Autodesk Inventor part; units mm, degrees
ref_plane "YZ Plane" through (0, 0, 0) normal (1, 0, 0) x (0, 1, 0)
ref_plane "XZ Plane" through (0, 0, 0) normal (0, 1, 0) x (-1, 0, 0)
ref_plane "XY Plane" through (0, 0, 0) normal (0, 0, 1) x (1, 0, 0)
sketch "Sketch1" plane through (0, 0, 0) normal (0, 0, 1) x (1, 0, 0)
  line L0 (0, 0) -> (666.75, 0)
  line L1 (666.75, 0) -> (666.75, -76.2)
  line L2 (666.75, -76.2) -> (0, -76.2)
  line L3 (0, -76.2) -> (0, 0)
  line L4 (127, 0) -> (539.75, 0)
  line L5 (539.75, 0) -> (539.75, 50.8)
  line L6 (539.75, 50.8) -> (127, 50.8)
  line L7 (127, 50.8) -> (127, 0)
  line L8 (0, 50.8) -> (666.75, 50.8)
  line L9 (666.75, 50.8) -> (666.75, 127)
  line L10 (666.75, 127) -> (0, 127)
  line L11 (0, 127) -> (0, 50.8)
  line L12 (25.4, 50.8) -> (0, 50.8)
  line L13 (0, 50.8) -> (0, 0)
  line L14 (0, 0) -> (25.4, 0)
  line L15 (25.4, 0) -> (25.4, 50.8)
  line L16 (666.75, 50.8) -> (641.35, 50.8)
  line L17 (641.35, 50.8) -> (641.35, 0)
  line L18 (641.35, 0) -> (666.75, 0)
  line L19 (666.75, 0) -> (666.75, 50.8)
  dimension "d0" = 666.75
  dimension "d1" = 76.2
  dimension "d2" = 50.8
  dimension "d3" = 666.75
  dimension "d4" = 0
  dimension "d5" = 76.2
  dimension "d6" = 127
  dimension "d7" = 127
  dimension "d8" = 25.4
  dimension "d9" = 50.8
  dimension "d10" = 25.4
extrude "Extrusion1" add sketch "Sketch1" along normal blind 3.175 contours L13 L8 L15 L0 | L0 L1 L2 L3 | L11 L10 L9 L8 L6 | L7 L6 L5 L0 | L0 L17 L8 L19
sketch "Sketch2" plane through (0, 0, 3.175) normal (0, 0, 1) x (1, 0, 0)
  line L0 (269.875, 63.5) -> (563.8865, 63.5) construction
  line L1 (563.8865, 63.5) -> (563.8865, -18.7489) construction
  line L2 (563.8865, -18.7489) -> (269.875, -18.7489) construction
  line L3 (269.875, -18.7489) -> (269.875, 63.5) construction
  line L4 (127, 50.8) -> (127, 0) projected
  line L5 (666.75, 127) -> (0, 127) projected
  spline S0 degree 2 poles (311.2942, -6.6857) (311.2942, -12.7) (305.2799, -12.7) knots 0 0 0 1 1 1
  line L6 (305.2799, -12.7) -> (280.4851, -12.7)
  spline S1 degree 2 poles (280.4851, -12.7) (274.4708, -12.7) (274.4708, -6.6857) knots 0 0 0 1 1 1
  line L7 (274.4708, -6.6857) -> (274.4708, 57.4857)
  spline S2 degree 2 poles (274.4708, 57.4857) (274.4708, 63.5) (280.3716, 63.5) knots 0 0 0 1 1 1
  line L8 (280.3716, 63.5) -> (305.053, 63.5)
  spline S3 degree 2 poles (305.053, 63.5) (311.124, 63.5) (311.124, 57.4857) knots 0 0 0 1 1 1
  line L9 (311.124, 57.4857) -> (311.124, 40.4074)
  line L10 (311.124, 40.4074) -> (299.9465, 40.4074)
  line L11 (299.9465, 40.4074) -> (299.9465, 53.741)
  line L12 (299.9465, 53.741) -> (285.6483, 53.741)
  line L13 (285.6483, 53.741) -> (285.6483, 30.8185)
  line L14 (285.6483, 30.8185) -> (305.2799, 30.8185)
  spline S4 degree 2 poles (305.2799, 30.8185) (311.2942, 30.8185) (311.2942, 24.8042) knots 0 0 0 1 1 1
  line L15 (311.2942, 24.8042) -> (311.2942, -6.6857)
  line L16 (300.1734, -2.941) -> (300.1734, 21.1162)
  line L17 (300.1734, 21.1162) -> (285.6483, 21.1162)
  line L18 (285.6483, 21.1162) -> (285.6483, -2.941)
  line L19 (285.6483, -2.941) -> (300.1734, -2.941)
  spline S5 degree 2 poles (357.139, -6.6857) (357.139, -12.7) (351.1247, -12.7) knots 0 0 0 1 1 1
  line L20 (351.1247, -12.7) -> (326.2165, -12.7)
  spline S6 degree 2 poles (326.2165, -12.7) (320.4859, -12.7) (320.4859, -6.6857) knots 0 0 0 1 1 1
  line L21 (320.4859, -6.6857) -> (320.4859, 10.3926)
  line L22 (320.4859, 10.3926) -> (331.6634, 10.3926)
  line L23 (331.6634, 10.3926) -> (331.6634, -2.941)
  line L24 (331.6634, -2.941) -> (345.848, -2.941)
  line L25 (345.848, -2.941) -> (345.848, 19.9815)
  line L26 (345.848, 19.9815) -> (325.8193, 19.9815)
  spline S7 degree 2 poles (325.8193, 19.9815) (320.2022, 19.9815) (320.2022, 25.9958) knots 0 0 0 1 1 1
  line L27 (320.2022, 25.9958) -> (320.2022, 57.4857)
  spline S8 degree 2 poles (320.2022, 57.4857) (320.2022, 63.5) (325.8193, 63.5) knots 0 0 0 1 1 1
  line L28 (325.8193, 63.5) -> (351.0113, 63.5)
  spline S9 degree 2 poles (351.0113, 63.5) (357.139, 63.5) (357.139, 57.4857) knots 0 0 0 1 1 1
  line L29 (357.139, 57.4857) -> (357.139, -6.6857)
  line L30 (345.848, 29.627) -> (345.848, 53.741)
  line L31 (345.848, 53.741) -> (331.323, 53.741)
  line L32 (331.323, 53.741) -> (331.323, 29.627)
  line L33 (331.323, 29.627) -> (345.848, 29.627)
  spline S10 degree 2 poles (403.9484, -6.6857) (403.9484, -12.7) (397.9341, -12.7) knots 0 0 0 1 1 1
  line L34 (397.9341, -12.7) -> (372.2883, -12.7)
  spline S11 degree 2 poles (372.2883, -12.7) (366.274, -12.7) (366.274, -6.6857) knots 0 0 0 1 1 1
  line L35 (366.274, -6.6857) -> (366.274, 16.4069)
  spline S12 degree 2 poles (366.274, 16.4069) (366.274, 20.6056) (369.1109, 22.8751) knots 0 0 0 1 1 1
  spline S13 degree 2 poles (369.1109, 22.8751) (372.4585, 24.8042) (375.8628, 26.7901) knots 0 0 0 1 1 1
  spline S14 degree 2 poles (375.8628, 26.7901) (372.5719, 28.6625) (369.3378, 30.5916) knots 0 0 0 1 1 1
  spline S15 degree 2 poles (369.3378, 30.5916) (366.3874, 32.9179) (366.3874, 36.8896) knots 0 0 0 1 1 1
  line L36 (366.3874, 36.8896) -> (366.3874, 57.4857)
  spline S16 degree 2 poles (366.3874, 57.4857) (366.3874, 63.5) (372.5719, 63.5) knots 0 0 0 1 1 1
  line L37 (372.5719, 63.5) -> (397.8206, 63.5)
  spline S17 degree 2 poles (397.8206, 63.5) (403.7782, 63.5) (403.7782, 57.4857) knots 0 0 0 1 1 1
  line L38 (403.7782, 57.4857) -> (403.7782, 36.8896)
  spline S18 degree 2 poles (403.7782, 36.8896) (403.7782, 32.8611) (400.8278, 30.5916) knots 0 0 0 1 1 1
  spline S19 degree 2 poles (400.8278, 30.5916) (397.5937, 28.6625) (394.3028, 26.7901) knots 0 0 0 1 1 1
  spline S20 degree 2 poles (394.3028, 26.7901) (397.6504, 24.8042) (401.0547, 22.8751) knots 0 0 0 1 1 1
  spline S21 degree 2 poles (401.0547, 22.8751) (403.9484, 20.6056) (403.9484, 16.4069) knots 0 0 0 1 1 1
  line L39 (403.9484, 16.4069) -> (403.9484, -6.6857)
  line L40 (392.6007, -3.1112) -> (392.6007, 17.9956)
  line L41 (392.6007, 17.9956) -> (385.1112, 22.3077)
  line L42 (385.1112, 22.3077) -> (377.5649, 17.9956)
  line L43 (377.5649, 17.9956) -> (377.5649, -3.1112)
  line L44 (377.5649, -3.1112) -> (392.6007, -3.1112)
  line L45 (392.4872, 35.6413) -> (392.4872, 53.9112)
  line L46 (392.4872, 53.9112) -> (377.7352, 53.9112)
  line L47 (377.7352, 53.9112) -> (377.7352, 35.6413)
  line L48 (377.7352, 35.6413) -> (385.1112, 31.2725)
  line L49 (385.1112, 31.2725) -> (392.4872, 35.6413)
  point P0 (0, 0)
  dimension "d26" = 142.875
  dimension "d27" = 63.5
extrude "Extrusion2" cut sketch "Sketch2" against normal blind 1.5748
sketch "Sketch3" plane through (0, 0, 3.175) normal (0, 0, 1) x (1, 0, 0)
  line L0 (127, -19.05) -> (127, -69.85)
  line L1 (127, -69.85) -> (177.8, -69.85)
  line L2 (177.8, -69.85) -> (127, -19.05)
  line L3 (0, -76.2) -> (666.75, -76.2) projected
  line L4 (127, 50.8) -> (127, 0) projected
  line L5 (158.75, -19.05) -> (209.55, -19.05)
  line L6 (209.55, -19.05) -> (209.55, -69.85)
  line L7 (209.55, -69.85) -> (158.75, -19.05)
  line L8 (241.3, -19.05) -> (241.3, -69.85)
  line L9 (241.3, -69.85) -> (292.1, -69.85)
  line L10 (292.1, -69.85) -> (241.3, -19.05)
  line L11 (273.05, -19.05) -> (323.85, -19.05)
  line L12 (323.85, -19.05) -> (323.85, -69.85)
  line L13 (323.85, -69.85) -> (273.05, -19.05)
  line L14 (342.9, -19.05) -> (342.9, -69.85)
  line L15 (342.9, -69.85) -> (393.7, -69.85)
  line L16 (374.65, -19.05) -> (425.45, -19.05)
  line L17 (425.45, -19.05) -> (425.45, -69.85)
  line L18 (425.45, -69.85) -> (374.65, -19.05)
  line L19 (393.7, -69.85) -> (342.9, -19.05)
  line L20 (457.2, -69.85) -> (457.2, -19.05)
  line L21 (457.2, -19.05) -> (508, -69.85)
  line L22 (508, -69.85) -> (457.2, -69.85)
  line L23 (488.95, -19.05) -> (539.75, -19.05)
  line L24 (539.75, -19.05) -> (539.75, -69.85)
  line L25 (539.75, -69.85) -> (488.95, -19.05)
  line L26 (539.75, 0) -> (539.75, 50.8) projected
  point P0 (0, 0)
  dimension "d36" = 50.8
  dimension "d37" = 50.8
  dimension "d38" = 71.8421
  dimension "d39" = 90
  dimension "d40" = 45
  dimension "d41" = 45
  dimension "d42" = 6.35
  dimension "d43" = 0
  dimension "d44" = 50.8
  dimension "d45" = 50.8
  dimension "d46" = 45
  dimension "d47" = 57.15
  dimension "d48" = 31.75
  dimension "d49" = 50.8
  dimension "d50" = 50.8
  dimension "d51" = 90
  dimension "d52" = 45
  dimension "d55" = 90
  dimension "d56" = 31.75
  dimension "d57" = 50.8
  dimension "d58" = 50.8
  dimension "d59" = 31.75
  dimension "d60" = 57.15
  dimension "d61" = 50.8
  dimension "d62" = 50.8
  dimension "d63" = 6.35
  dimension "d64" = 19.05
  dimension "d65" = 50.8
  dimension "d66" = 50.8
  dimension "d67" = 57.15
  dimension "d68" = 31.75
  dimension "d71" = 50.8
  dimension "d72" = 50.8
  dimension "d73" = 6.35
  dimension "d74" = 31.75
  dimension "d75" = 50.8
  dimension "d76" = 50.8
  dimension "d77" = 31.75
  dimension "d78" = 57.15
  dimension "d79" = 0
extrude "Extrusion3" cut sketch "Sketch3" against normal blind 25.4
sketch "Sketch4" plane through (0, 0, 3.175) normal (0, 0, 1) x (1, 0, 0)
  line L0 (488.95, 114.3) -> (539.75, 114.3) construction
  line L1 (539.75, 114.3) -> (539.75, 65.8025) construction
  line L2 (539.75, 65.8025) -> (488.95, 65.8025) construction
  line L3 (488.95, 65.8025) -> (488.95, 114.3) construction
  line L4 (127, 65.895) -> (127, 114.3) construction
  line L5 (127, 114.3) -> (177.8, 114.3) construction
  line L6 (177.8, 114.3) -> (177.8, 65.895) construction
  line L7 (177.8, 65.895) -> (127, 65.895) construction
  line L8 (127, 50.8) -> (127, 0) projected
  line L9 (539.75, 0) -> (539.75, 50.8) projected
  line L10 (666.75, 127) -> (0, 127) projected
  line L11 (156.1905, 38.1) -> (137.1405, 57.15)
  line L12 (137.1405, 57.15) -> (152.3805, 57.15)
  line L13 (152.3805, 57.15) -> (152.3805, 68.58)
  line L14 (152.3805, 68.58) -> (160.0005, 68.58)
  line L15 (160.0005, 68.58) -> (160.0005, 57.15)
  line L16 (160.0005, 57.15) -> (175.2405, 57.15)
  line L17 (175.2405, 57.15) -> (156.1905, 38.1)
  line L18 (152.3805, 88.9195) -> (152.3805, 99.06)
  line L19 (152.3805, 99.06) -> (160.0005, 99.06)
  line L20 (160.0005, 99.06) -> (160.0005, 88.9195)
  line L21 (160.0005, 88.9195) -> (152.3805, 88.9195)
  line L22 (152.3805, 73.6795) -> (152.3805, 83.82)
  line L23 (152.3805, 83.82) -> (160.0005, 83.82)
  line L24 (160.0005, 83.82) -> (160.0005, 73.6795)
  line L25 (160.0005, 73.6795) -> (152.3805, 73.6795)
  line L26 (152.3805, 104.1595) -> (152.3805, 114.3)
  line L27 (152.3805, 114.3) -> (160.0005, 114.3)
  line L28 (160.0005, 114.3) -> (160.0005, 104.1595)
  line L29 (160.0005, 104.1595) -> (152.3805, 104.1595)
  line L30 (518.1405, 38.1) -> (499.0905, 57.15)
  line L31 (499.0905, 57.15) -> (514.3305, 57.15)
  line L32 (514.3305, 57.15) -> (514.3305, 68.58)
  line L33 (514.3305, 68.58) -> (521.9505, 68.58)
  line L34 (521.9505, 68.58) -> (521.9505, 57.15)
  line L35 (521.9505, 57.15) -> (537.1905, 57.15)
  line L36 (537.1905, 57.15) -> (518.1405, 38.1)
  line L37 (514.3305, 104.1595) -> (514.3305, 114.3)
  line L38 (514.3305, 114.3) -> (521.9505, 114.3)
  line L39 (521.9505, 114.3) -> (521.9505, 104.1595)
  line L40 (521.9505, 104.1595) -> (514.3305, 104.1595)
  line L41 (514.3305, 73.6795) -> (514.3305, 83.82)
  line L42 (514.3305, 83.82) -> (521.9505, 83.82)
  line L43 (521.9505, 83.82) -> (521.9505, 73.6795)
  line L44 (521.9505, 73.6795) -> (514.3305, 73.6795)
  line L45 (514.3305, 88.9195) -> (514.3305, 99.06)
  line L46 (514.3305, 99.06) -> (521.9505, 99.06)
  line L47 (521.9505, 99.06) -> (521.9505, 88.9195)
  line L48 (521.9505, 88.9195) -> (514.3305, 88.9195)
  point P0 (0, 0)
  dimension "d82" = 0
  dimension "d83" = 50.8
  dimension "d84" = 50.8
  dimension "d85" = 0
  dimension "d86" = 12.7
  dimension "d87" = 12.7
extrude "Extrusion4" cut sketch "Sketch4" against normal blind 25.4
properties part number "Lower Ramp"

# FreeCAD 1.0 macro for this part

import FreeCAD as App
import Part
import Sketcher

V = App.Vector
Q = App.Units.Quantity

doc = App.newDocument("Part")
body = doc.addObject("PartDesign::Body", "Body")

# Sketch on XY plane
sketch1 = body.newObject("Sketcher::SketchObject", "Sketch")
sketch1.AttachmentSupport = (doc.getObject("XY_Plane"), [""])
sketch1.MapMode = "FlatFace"
sketch1.addGeometry(Part.LineSegment(V(0, -76, 0), V(667, -76, 0)), False)
sketch1.addGeometry(Part.LineSegment(V(667, -76, 0), V(667, 127, 0)), False)
sketch1.addGeometry(Part.LineSegment(V(667, 127, 0), V(0, 127, 0)), False)
sketch1.addGeometry(Part.LineSegment(V(0, 127, 0), V(0, -76, 0)), False)
sketch1.addGeometry(Part.LineSegment(V(25, 0, 0), V(25, 51, 0)), False)
sketch1.addGeometry(Part.LineSegment(V(25, 51, 0), V(127, 51, 0)), False)
sketch1.addGeometry(Part.LineSegment(V(127, 51, 0), V(127, 0, 0)), False)
sketch1.addGeometry(Part.LineSegment(V(127, 0, 0), V(25, 0, 0)), False)
sketch1.addGeometry(Part.LineSegment(V(540, 51, 0), V(641, 51, 0)), False)
sketch1.addGeometry(Part.LineSegment(V(641, 51, 0), V(641, 0, 0)), False)
sketch1.addGeometry(Part.LineSegment(V(641, 0, 0), V(540, 0, 0)), False)
sketch1.addGeometry(Part.LineSegment(V(540, 0, 0), V(540, 51, 0)), False)
sketch1.addConstraint(Sketcher.Constraint("Coincident", 0, 2, 1, 1))
sketch1.addConstraint(Sketcher.Constraint("Coincident", 1, 2, 2, 1))
sketch1.addConstraint(Sketcher.Constraint("Coincident", 2, 2, 3, 1))
sketch1.addConstraint(Sketcher.Constraint("Coincident", 3, 2, 0, 1))
sketch1.addConstraint(Sketcher.Constraint("Coincident", 4, 2, 5, 1))
sketch1.addConstraint(Sketcher.Constraint("Coincident", 5, 2, 6, 1))
sketch1.addConstraint(Sketcher.Constraint("Coincident", 6, 2, 7, 1))
sketch1.addConstraint(Sketcher.Constraint("Coincident", 7, 2, 4, 1))
sketch1.addConstraint(Sketcher.Constraint("Coincident", 8, 2, 9, 1))
sketch1.addConstraint(Sketcher.Constraint("Coincident", 9, 2, 10, 1))
sketch1.addConstraint(Sketcher.Constraint("Coincident", 10, 2, 11, 1))
sketch1.addConstraint(Sketcher.Constraint("Coincident", 11, 2, 8, 1))
sketch1.addConstraint(Sketcher.Constraint("Horizontal", 0))
sketch1.addConstraint(Sketcher.Constraint("Vertical", 1))
sketch1.addConstraint(Sketcher.Constraint("Horizontal", 2))
sketch1.addConstraint(Sketcher.Constraint("Vertical", 3))
sketch1.addConstraint(Sketcher.Constraint("Vertical", 4))
sketch1.addConstraint(Sketcher.Constraint("Horizontal", 5))
sketch1.addConstraint(Sketcher.Constraint("Vertical", 6))
sketch1.addConstraint(Sketcher.Constraint("Horizontal", 7))
sketch1.addConstraint(Sketcher.Constraint("Horizontal", 8))
sketch1.addConstraint(Sketcher.Constraint("Vertical", 9))
sketch1.addConstraint(Sketcher.Constraint("Horizontal", 10))
sketch1.addConstraint(Sketcher.Constraint("Vertical", 11))
sketch1.addConstraint(Sketcher.Constraint("PointOnObject", 2, 2, -2))
sketch1.addConstraint(Sketcher.Constraint("PointOnObject", 6, 2, -1))
sketch1.addConstraint(Sketcher.Constraint("PointOnObject", 9, 2, -1))
sketch1.addConstraint(Sketcher.Constraint("Horizontal", 5, 2, 8, 2))
sketch1.addConstraint(Sketcher.Constraint("Equal", 7, 8))
sketch1.addConstraint(Sketcher.Constraint("DistanceY", 4, 1, 4, 2, Q("2 in")))
sketch1.addConstraint(Sketcher.Constraint("DistanceY", 0, 2, -1, 1, Q("3 in")))
sketch1.addConstraint(Sketcher.Constraint("DistanceY", -1, 1, 1, 2, Q("5 in")))
sketch1.addConstraint(Sketcher.Constraint("DistanceX", -1, 1, 4, 2, Q("1 in")))
sketch1.addConstraint(Sketcher.Constraint("DistanceX", -1, 1, 5, 2, Q("5 in")))
sketch1.addConstraint(Sketcher.Constraint("DistanceX", 8, 2, 1, 2, Q("1 in")))
sketch1.addConstraint(Sketcher.Constraint("DistanceX", 0, 1, 0, 2, Q("26.25 in")))
pad1 = body.newObject("PartDesign::Pad", "Pad")
pad1.Profile = sketch1
pad1.Length = Q("0.125 in")

# Sketch on XY plane
sketch2 = body.newObject("Sketcher::SketchObject", "Sketch001")
sketch2.AttachmentSupport = (doc.getObject("XY_Plane"), [""])
sketch2.MapMode = "FlatFace"
sketch2.AttachmentOffset = App.Placement(V(0, 0, 0.125 * 25.4), App.Rotation())
sketch2.addGeometry(Part.BSplineCurve([V(311.2942, -6.6857, 0), V(311.2942, -12.7, 0), V(305.2799, -12.7, 0)], [3, 3], [0, 1], False, 2, [1, 1, 1], False), False)
sketch2.addGeometry(Part.LineSegment(V(311.2942, -6.6857, 0), V(311.2942, 24.8042, 0)), False)
sketch2.addGeometry(Part.BSplineCurve([V(305.2799, 30.8185, 0), V(311.2942, 30.8185, 0), V(311.2942, 24.8042, 0)], [3, 3], [0, 1], False, 2, [1, 1, 1], False), False)
sketch2.addGeometry(Part.LineSegment(V(305.2799, 30.8185, 0), V(285.6483, 30.8185, 0)), False)
sketch2.addGeometry(Part.LineSegment(V(285.6483, 30.8185, 0), V(285.6483, 53.741, 0)), False)
sketch2.addGeometry(Part.LineSegment(V(285.6483, 53.741, 0), V(299.9465, 53.741, 0)), False)
sketch2.addGeometry(Part.LineSegment(V(299.9465, 53.741, 0), V(299.9465, 40.4074, 0)), False)
sketch2.addGeometry(Part.LineSegment(V(299.9465, 40.4074, 0), V(311.124, 40.4074, 0)), False)
sketch2.addGeometry(Part.LineSegment(V(311.124, 40.4074, 0), V(311.124, 57.4857, 0)), False)
sketch2.addGeometry(Part.BSplineCurve([V(305.053, 63.5, 0), V(311.124, 63.5, 0), V(311.124, 57.4857, 0)], [3, 3], [0, 1], False, 2, [1, 1, 1], False), False)
sketch2.addGeometry(Part.LineSegment(V(305.053, 63.5, 0), V(280.3716, 63.5, 0)), False)
sketch2.addGeometry(Part.BSplineCurve([V(274.4708, 57.4857, 0), V(274.4708, 63.5, 0), V(280.3716, 63.5, 0)], [3, 3], [0, 1], False, 2, [1, 1, 1], False), False)
sketch2.addGeometry(Part.LineSegment(V(274.4708, 57.4857, 0), V(274.4708, -6.6857, 0)), False)
sketch2.addGeometry(Part.BSplineCurve([V(280.4851, -12.7, 0), V(274.4708, -12.7, 0), V(274.4708, -6.6857, 0)], [3, 3], [0, 1], False, 2, [1, 1, 1], False), False)
sketch2.addGeometry(Part.LineSegment(V(280.4851, -12.7, 0), V(305.2799, -12.7, 0)), False)
sketch2.addGeometry(Part.LineSegment(V(300.1734, 21.1162, 0), V(300.1734, -2.941, 0)), False)
sketch2.addGeometry(Part.LineSegment(V(300.1734, -2.941, 0), V(285.6483, -2.941, 0)), False)
sketch2.addGeometry(Part.LineSegment(V(285.6483, -2.941, 0), V(285.6483, 21.1162, 0)), False)
sketch2.addGeometry(Part.LineSegment(V(285.6483, 21.1162, 0), V(300.1734, 21.1162, 0)), False)
sketch2.addGeometry(Part.BSplineCurve([V(357.139, -6.6857, 0), V(357.139, -12.7, 0), V(351.1247, -12.7, 0)], [3, 3], [0, 1], False, 2, [1, 1, 1], False), False)
sketch2.addGeometry(Part.LineSegment(V(357.139, -6.6857, 0), V(357.139, 57.4857, 0)), False)
sketch2.addGeometry(Part.BSplineCurve([V(351.0113, 63.5, 0), V(357.139, 63.5, 0), V(357.139, 57.4857, 0)], [3, 3], [0, 1], False, 2, [1, 1, 1], False), False)
sketch2.addGeometry(Part.LineSegment(V(351.0113, 63.5, 0), V(325.8193, 63.5, 0)), False)
sketch2.addGeometry(Part.BSplineCurve([V(320.2022, 57.4857, 0), V(320.2022, 63.5, 0), V(325.8193, 63.5, 0)], [3, 3], [0, 1], False, 2, [1, 1, 1], False), False)
sketch2.addGeometry(Part.LineSegment(V(320.2022, 57.4857, 0), V(320.2022, 25.9958, 0)), False)
sketch2.addGeometry(Part.BSplineCurve([V(325.8193, 19.9815, 0), V(320.2022, 19.9815, 0), V(320.2022, 25.9958, 0)], [3, 3], [0, 1], False, 2, [1, 1, 1], False), False)
sketch2.addGeometry(Part.LineSegment(V(325.8193, 19.9815, 0), V(345.848, 19.9815, 0)), False)
sketch2.addGeometry(Part.LineSegment(V(345.848, 19.9815, 0), V(345.848, -2.941, 0)), False)
sketch2.addGeometry(Part.LineSegment(V(345.848, -2.941, 0), V(331.6634, -2.941, 0)), False)
sketch2.addGeometry(Part.LineSegment(V(331.6634, -2.941, 0), V(331.6634, 10.3926, 0)), False)
sketch2.addGeometry(Part.LineSegment(V(331.6634, 10.3926, 0), V(320.4859, 10.3926, 0)), False)
sketch2.addGeometry(Part.LineSegment(V(320.4859, 10.3926, 0), V(320.4859, -6.6857, 0)), False)
sketch2.addGeometry(Part.BSplineCurve([V(326.2165, -12.7, 0), V(320.4859, -12.7, 0), V(320.4859, -6.6857, 0)], [3, 3], [0, 1], False, 2, [1, 1, 1], False), False)
sketch2.addGeometry(Part.LineSegment(V(326.2165, -12.7, 0), V(351.1247, -12.7, 0)), False)
sketch2.addGeometry(Part.LineSegment(V(345.848, 53.741, 0), V(345.848, 29.627, 0)), False)
sketch2.addGeometry(Part.LineSegment(V(345.848, 29.627, 0), V(331.323, 29.627, 0)), False)
sketch2.addGeometry(Part.LineSegment(V(331.323, 29.627, 0), V(331.323, 53.741, 0)), False)
sketch2.addGeometry(Part.LineSegment(V(331.323, 53.741, 0), V(345.848, 53.741, 0)), False)
sketch2.addGeometry(Part.BSplineCurve([V(403.9484, -6.6857, 0), V(403.9484, -12.7, 0), V(397.9341, -12.7, 0)], [3, 3], [0, 1], False, 2, [1, 1, 1], False), False)
sketch2.addGeometry(Part.LineSegment(V(403.9484, -6.6857, 0), V(403.9484, 16.4069, 0)), False)
sketch2.addGeometry(Part.BSplineCurve([V(401.0547, 22.8751, 0), V(403.9484, 20.6056, 0), V(403.9484, 16.4069, 0)], [3, 3], [0, 1], False, 2, [1, 1, 1], False), False)
sketch2.addGeometry(Part.BSplineCurve([V(394.3028, 26.7901, 0), V(397.6504, 24.8042, 0), V(401.0547, 22.8751, 0)], [3, 3], [0, 1], False, 2, [1, 1, 1], False), False)
sketch2.addGeometry(Part.BSplineCurve([V(400.8278, 30.5916, 0), V(397.5937, 28.6625, 0), V(394.3028, 26.7901, 0)], [3, 3], [0, 1], False, 2, [1, 1, 1], False), False)
sketch2.addGeometry(Part.BSplineCurve([V(403.7782, 36.8896, 0), V(403.7782, 32.8611, 0), V(400.8278, 30.5916, 0)], [3, 3], [0, 1], False, 2, [1, 1, 1], False), False)
sketch2.addGeometry(Part.LineSegment(V(403.7782, 36.8896, 0), V(403.7782, 57.4857, 0)), False)
sketch2.addGeometry(Part.BSplineCurve([V(397.8206, 63.5, 0), V(403.7782, 63.5, 0), V(403.7782, 57.4857, 0)], [3, 3], [0, 1], False, 2, [1, 1, 1], False), False)
sketch2.addGeometry(Part.LineSegment(V(397.8206, 63.5, 0), V(372.5719, 63.5, 0)), False)
sketch2.addGeometry(Part.BSplineCurve([V(366.3874, 57.4857, 0), V(366.3874, 63.5, 0), V(372.5719, 63.5, 0)], [3, 3], [0, 1], False, 2, [1, 1, 1], False), False)
sketch2.addGeometry(Part.LineSegment(V(366.3874, 57.4857, 0), V(366.3874, 36.8896, 0)), False)
sketch2.addGeometry(Part.BSplineCurve([V(369.3378, 30.5916, 0), V(366.3874, 32.9179, 0), V(366.3874, 36.8896, 0)], [3, 3], [0, 1], False, 2, [1, 1, 1], False), False)
sketch2.addGeometry(Part.BSplineCurve([V(375.8628, 26.7901, 0), V(372.5719, 28.6625, 0), V(369.3378, 30.5916, 0)], [3, 3], [0, 1], False, 2, [1, 1, 1], False), False)
sketch2.addGeometry(Part.BSplineCurve([V(369.1109, 22.8751, 0), V(372.4585, 24.8042, 0), V(375.8628, 26.7901, 0)], [3, 3], [0, 1], False, 2, [1, 1, 1], False), False)
sketch2.addGeometry(Part.BSplineCurve([V(366.274, 16.4069, 0), V(366.274, 20.6056, 0), V(369.1109, 22.8751, 0)], [3, 3], [0, 1], False, 2, [1, 1, 1], False), False)
sketch2.addGeometry(Part.LineSegment(V(366.274, 16.4069, 0), V(366.274, -6.6857, 0)), False)
sketch2.addGeometry(Part.BSplineCurve([V(372.2883, -12.7, 0), V(366.274, -12.7, 0), V(366.274, -6.6857, 0)], [3, 3], [0, 1], False, 2, [1, 1, 1], False), False)
sketch2.addGeometry(Part.LineSegment(V(372.2883, -12.7, 0), V(397.9341, -12.7, 0)), False)
sketch2.addGeometry(Part.LineSegment(V(392.6007, 17.9956, 0), V(392.6007, -3.1112, 0)), False)
sketch2.addGeometry(Part.LineSegment(V(392.6007, -3.1112, 0), V(377.5649, -3.1112, 0)), False)
sketch2.addGeometry(Part.LineSegment(V(377.5649, -3.1112, 0), V(377.5649, 17.9956, 0)), False)
sketch2.addGeometry(Part.LineSegment(V(377.5649, 17.9956, 0), V(385.1112, 22.3077, 0)), False)
sketch2.addGeometry(Part.LineSegment(V(385.1112, 22.3077, 0), V(392.6007, 17.9956, 0)), False)
sketch2.addGeometry(Part.LineSegment(V(392.4872, 53.9112, 0), V(392.4872, 35.6413, 0)), False)
sketch2.addGeometry(Part.LineSegment(V(392.4872, 35.6413, 0), V(385.1112, 31.2725, 0)), False)
sketch2.addGeometry(Part.LineSegment(V(385.1112, 31.2725, 0), V(377.7352, 35.6413, 0)), False)
sketch2.addGeometry(Part.LineSegment(V(377.7352, 35.6413, 0), V(377.7352, 53.9112, 0)), False)
sketch2.addGeometry(Part.LineSegment(V(377.7352, 53.9112, 0), V(392.4872, 53.9112, 0)), False)
sketch2.addConstraint(Sketcher.Constraint("Block", 0))
sketch2.addConstraint(Sketcher.Constraint("Block", 2))
sketch2.addConstraint(Sketcher.Constraint("Block", 9))
sketch2.addConstraint(Sketcher.Constraint("Block", 11))
sketch2.addConstraint(Sketcher.Constraint("Block", 13))
sketch2.addConstraint(Sketcher.Constraint("Block", 19))
sketch2.addConstraint(Sketcher.Constraint("Block", 21))
sketch2.addConstraint(Sketcher.Constraint("Block", 23))
sketch2.addConstraint(Sketcher.Constraint("Block", 25))
sketch2.addConstraint(Sketcher.Constraint("Block", 32))
sketch2.addConstraint(Sketcher.Constraint("Block", 38))
sketch2.addConstraint(Sketcher.Constraint("Block", 40))
sketch2.addConstraint(Sketcher.Constraint("Block", 41))
sketch2.addConstraint(Sketcher.Constraint("Block", 42))
sketch2.addConstraint(Sketcher.Constraint("Block", 43))
sketch2.addConstraint(Sketcher.Constraint("Block", 45))
sketch2.addConstraint(Sketcher.Constraint("Block", 47))
sketch2.addConstraint(Sketcher.Constraint("Block", 49))
sketch2.addConstraint(Sketcher.Constraint("Block", 50))
sketch2.addConstraint(Sketcher.Constraint("Block", 51))
sketch2.addConstraint(Sketcher.Constraint("Block", 52))
sketch2.addConstraint(Sketcher.Constraint("Block", 54))
sketch2.addConstraint(Sketcher.Constraint("Coincident", 0, 1, 1, 1))
sketch2.addConstraint(Sketcher.Constraint("Coincident", 1, 2, 2, 2))
sketch2.addConstraint(Sketcher.Constraint("Coincident", 2, 1, 3, 1))
sketch2.addConstraint(Sketcher.Constraint("Coincident", 3, 2, 4, 1))
sketch2.addConstraint(Sketcher.Constraint("Coincident", 4, 2, 5, 1))
sketch2.addConstraint(Sketcher.Constraint("Coincident", 5, 2, 6, 1))
sketch2.addConstraint(Sketcher.Constraint("Coincident", 6, 2, 7, 1))
sketch2.addConstraint(Sketcher.Constraint("Coincident", 7, 2, 8, 1))
sketch2.addConstraint(Sketcher.Constraint("Coincident", 8, 2, 9, 2))
sketch2.addConstraint(Sketcher.Constraint("Coincident", 9, 1, 10, 1))
sketch2.addConstraint(Sketcher.Constraint("Coincident", 10, 2, 11, 2))
sketch2.addConstraint(Sketcher.Constraint("Coincident", 11, 1, 12, 1))
sketch2.addConstraint(Sketcher.Constraint("Coincident", 12, 2, 13, 2))
sketch2.addConstraint(Sketcher.Constraint("Coincident", 13, 1, 14, 1))
sketch2.addConstraint(Sketcher.Constraint("Coincident", 14, 2, 0, 2))
sketch2.addConstraint(Sketcher.Constraint("Coincident", 15, 2, 16, 1))
sketch2.addConstraint(Sketcher.Constraint("Coincident", 16, 2, 17, 1))
sketch2.addConstraint(Sketcher.Constraint("Coincident", 17, 2, 18, 1))
sketch2.addConstraint(Sketcher.Constraint("Coincident", 18, 2, 15, 1))
sketch2.addConstraint(Sketcher.Constraint("Coincident", 19, 1, 20, 1))
sketch2.addConstraint(Sketcher.Constraint("Coincident", 20, 2, 21, 2))
sketch2.addConstraint(Sketcher.Constraint("Coincident", 21, 1, 22, 1))
sketch2.addConstraint(Sketcher.Constraint("Coincident", 22, 2, 23, 2))
sketch2.addConstraint(Sketcher.Constraint("Coincident", 23, 1, 24, 1))
sketch2.addConstraint(Sketcher.Constraint("Coincident", 24, 2, 25, 2))
sketch2.addConstraint(Sketcher.Constraint("Coincident", 25, 1, 26, 1))
sketch2.addConstraint(Sketcher.Constraint("Coincident", 26, 2, 27, 1))
sketch2.addConstraint(Sketcher.Constraint("Coincident", 27, 2, 28, 1))
sketch2.addConstraint(Sketcher.Constraint("Coincident", 28, 2, 29, 1))
sketch2.addConstraint(Sketcher.Constraint("Coincident", 29, 2, 30, 1))
sketch2.addConstraint(Sketcher.Constraint("Coincident", 30, 2, 31, 1))
sketch2.addConstraint(Sketcher.Constraint("Coincident", 31, 2, 32, 2))
sketch2.addConstraint(Sketcher.Constraint("Coincident", 32, 1, 33, 1))
sketch2.addConstraint(Sketcher.Constraint("Coincident", 33, 2, 19, 2))
sketch2.addConstraint(Sketcher.Constraint("Coincident", 34, 2, 35, 1))
sketch2.addConstraint(Sketcher.Constraint("Coincident", 35, 2, 36, 1))
sketch2.addConstraint(Sketcher.Constraint("Coincident", 36, 2, 37, 1))
sketch2.addConstraint(Sketcher.Constraint("Coincident", 37, 2, 34, 1))
sketch2.addConstraint(Sketcher.Constraint("Coincident", 38, 1, 39, 1))
sketch2.addConstraint(Sketcher.Constraint("Coincident", 39, 2, 40, 2))
sketch2.addConstraint(Sketcher.Constraint("Coincident", 43, 1, 44, 1))
sketch2.addConstraint(Sketcher.Constraint("Coincident", 44, 2, 45, 2))
sketch2.addConstraint(Sketcher.Constraint("Coincident", 45, 1, 46, 1))
sketch2.addConstraint(Sketcher.Constraint("Coincident", 46, 2, 47, 2))
sketch2.addConstraint(Sketcher.Constraint("Coincident", 47, 1, 48, 1))
sketch2.addConstraint(Sketcher.Constraint("Coincident", 48, 2, 49, 2))
sketch2.addConstraint(Sketcher.Constraint("Coincident", 52, 1, 53, 1))
sketch2.addConstraint(Sketcher.Constraint("Coincident", 53, 2, 54, 2))
sketch2.addConstraint(Sketcher.Constraint("Coincident", 54, 1, 55, 1))
sketch2.addConstraint(Sketcher.Constraint("Coincident", 55, 2, 38, 2))
sketch2.addConstraint(Sketcher.Constraint("Coincident", 56, 2, 57, 1))
sketch2.addConstraint(Sketcher.Constraint("Coincident", 57, 2, 58, 1))
sketch2.addConstraint(Sketcher.Constraint("Coincident", 58, 2, 59, 1))
sketch2.addConstraint(Sketcher.Constraint("Coincident", 59, 2, 60, 1))
sketch2.addConstraint(Sketcher.Constraint("Coincident", 60, 2, 56, 1))
sketch2.addConstraint(Sketcher.Constraint("Coincident", 61, 2, 62, 1))
sketch2.addConstraint(Sketcher.Constraint("Coincident", 62, 2, 63, 1))
sketch2.addConstraint(Sketcher.Constraint("Coincident", 63, 2, 64, 1))
sketch2.addConstraint(Sketcher.Constraint("Coincident", 64, 2, 65, 1))
sketch2.addConstraint(Sketcher.Constraint("Coincident", 65, 2, 61, 1))
sketch2.addConstraint(Sketcher.Constraint("Horizontal", 3))
sketch2.addConstraint(Sketcher.Constraint("Vertical", 4))
sketch2.addConstraint(Sketcher.Constraint("Horizontal", 5))
sketch2.addConstraint(Sketcher.Constraint("Vertical", 6))
sketch2.addConstraint(Sketcher.Constraint("Horizontal", 7))
sketch2.addConstraint(Sketcher.Constraint("Vertical", 8))
sketch2.addConstraint(Sketcher.Constraint("Vertical", 15))
sketch2.addConstraint(Sketcher.Constraint("Horizontal", 16))
sketch2.addConstraint(Sketcher.Constraint("Vertical", 17))
sketch2.addConstraint(Sketcher.Constraint("Horizontal", 18))
sketch2.addConstraint(Sketcher.Constraint("Horizontal", 26))
sketch2.addConstraint(Sketcher.Constraint("Vertical", 27))
sketch2.addConstraint(Sketcher.Constraint("Horizontal", 28))
sketch2.addConstraint(Sketcher.Constraint("Vertical", 29))
sketch2.addConstraint(Sketcher.Constraint("Horizontal", 30))
sketch2.addConstraint(Sketcher.Constraint("Vertical", 31))
sketch2.addConstraint(Sketcher.Constraint("Vertical", 34))
sketch2.addConstraint(Sketcher.Constraint("Horizontal", 35))
sketch2.addConstraint(Sketcher.Constraint("Vertical", 36))
sketch2.addConstraint(Sketcher.Constraint("Horizontal", 37))
sketch2.addConstraint(Sketcher.Constraint("Vertical", 56))
sketch2.addConstraint(Sketcher.Constraint("Horizontal", 57))
sketch2.addConstraint(Sketcher.Constraint("Vertical", 58))
sketch2.addConstraint(Sketcher.Constraint("Vertical", 61))
sketch2.addConstraint(Sketcher.Constraint("Vertical", 64))
sketch2.addConstraint(Sketcher.Constraint("Horizontal", 65))
sketch2.addConstraint(Sketcher.Constraint("DistanceX", 3, 2, 3, 1, Q("0.7729 in")))
sketch2.addConstraint(Sketcher.Constraint("DistanceX", -1, 1, 16, 2, Q("11.246 in")))
sketch2.addConstraint(Sketcher.Constraint("DistanceY", 12, 2, 4, 2, Q("2.379 in")))
sketch2.addConstraint(Sketcher.Constraint("DistanceY", 62, 2, 61, 2, Q("0.172 in")))
sketch2.addConstraint(Sketcher.Constraint("DistanceY", 62, 2, 63, 2, Q("0.172 in")))
sketch2.addConstraint(Sketcher.Constraint("Distance", 62, Q("0.3375 in")))
sketch2.addConstraint(Sketcher.Constraint("Distance", 63, Q("0.3375 in")))
sketch2.addConstraint(Sketcher.Constraint("DistanceX", 5, 1, 5, 2, Q("14.2982 mm")))
sketch2.addConstraint(Sketcher.Constraint("DistanceX", 16, 2, 16, 1, Q("14.525 mm")))
sketch2.addConstraint(Sketcher.Constraint("DistanceX", 26, 1, 26, 2, Q("20.0287 mm")))
sketch2.addConstraint(Sketcher.Constraint("DistanceX", 28, 2, 28, 1, Q("14.1846 mm")))
sketch2.addConstraint(Sketcher.Constraint("DistanceX", 35, 2, 35, 1, Q("14.525 mm")))
sketch2.addConstraint(Sketcher.Constraint("DistanceX", 57, 2, 57, 1, Q("15.0358 mm")))
sketch2.addConstraint(Sketcher.Constraint("DistanceY", 6, 2, 6, 1, Q("13.3336 mm")))
sketch2.addConstraint(Sketcher.Constraint("DistanceY", 15, 2, 15, 1, Q("24.0572 mm")))
sketch2.addConstraint(Sketcher.Constraint("DistanceY", 27, 2, 27, 1, Q("22.9225 mm")))
sketch2.addConstraint(Sketcher.Constraint("DistanceY", 29, 1, 29, 2, Q("13.3336 mm")))
sketch2.addConstraint(Sketcher.Constraint("DistanceY", 34, 2, 34, 1, Q("24.114 mm")))
sketch2.addConstraint(Sketcher.Constraint("DistanceY", 56, 2, 56, 1, Q("21.1068 mm")))
sketch2.addConstraint(Sketcher.Constraint("DistanceY", 58, 1, 58, 2, Q("21.1068 mm")))
sketch2.addConstraint(Sketcher.Constraint("DistanceY", 61, 2, 61, 1, Q("0.7192913 in")))
sketch2.addConstraint(Sketcher.Constraint("DistanceY", 56, 2, -1, 1, Q("0.1225 in")))
sketch2.addConstraint(Sketcher.Constraint("DistanceY", -1, 1, 61, 2, Q("1.4032 in")))
sketch2.addConstraint(Sketcher.Constraint("DistanceY", 17, 2, 6, 2, Q("0.7595 in")))
sketch2.addConstraint(Sketcher.Constraint("DistanceY", 34, 2, 20, 2, Q("1.0968 in")))
sketch2.addConstraint(Sketcher.Constraint("DistanceX", 30, 2, 34, 2, Q("0.9985 in")))
sketch2.addConstraint(Sketcher.Constraint("DistanceX", 27, 2, 57, 2, Q("1.2487 in")))
sketch2.addConstraint(Sketcher.Constraint("DistanceX", 58, 2, 59, 2, Q("0.2971 in")))
sketch2.addConstraint(Sketcher.Constraint("DistanceY", 59, 2, 48, 2, Q("0.5741 in")))
sketch2.addConstraint(Sketcher.Constraint("DistanceX", 59, 2, 61, 2, Q("0.2904 in")))
pocket1 = body.newObject("PartDesign::Pocket", "Pocket")
pocket1.Profile = sketch2
pocket1.Length = Q("0.062 in")

# Sketch on XY plane
sketch3 = body.newObject("Sketcher::SketchObject", "Sketch002")
sketch3.AttachmentSupport = (doc.getObject("XY_Plane"), [""])
sketch3.MapMode = "FlatFace"
sketch3.AttachmentOffset = App.Placement(V(0, 0, 0.125 * 25.4), App.Rotation())
sketch3.addGeometry(Part.LineSegment(V(178, -70, 0), V(127, -19, 0)), False)
sketch3.addGeometry(Part.LineSegment(V(127, -19, 0), V(127, -70, 0)), False)
sketch3.addGeometry(Part.LineSegment(V(127, -70, 0), V(178, -70, 0)), False)
sketch3.addGeometry(Part.LineSegment(V(210, -19, 0), V(159, -19, 0)), False)
sketch3.addGeometry(Part.LineSegment(V(159, -19, 0), V(210, -70, 0)), False)
sketch3.addGeometry(Part.LineSegment(V(210, -70, 0), V(210, -19, 0)), False)
sketch3.addGeometry(Part.LineSegment(V(292, -70, 0), V(241, -19, 0)), False)
sketch3.addGeometry(Part.LineSegment(V(241, -19, 0), V(241, -70, 0)), False)
sketch3.addGeometry(Part.LineSegment(V(241, -70, 0), V(292, -70, 0)), False)
sketch3.addGeometry(Part.LineSegment(V(324, -19, 0), V(273, -19, 0)), False)
sketch3.addGeometry(Part.LineSegment(V(273, -19, 0), V(324, -70, 0)), False)
sketch3.addGeometry(Part.LineSegment(V(324, -70, 0), V(324, -19, 0)), False)
sketch3.addGeometry(Part.LineSegment(V(394, -70, 0), V(343, -19, 0)), False)
sketch3.addGeometry(Part.LineSegment(V(343, -19, 0), V(343, -70, 0)), False)
sketch3.addGeometry(Part.LineSegment(V(343, -70, 0), V(394, -70, 0)), False)
sketch3.addGeometry(Part.LineSegment(V(425, -19, 0), V(375, -19, 0)), False)
sketch3.addGeometry(Part.LineSegment(V(375, -19, 0), V(425, -70, 0)), False)
sketch3.addGeometry(Part.LineSegment(V(425, -70, 0), V(425, -19, 0)), False)
sketch3.addGeometry(Part.LineSegment(V(457, -19, 0), V(457, -70, 0)), False)
sketch3.addGeometry(Part.LineSegment(V(457, -70, 0), V(508, -70, 0)), False)
sketch3.addGeometry(Part.LineSegment(V(508, -70, 0), V(457, -19, 0)), False)
sketch3.addGeometry(Part.LineSegment(V(540, -19, 0), V(489, -19, 0)), False)
sketch3.addGeometry(Part.LineSegment(V(489, -19, 0), V(540, -70, 0)), False)
sketch3.addGeometry(Part.LineSegment(V(540, -70, 0), V(540, -19, 0)), False)
sketch3.addConstraint(Sketcher.Constraint("Coincident", 0, 2, 1, 1))
sketch3.addConstraint(Sketcher.Constraint("Coincident", 1, 2, 2, 1))
sketch3.addConstraint(Sketcher.Constraint("Coincident", 2, 2, 0, 1))
sketch3.addConstraint(Sketcher.Constraint("Coincident", 3, 2, 4, 1))
sketch3.addConstraint(Sketcher.Constraint("Coincident", 4, 2, 5, 1))
sketch3.addConstraint(Sketcher.Constraint("Coincident", 5, 2, 3, 1))
sketch3.addConstraint(Sketcher.Constraint("Coincident", 6, 2, 7, 1))
sketch3.addConstraint(Sketcher.Constraint("Coincident", 7, 2, 8, 1))
sketch3.addConstraint(Sketcher.Constraint("Coincident", 8, 2, 6, 1))
sketch3.addConstraint(Sketcher.Constraint("Coincident", 9, 2, 10, 1))
sketch3.addConstraint(Sketcher.Constraint("Coincident", 10, 2, 11, 1))
sketch3.addConstraint(Sketcher.Constraint("Coincident", 11, 2, 9, 1))
sketch3.addConstraint(Sketcher.Constraint("Coincident", 12, 2, 13, 1))
sketch3.addConstraint(Sketcher.Constraint("Coincident", 13, 2, 14, 1))
sketch3.addConstraint(Sketcher.Constraint("Coincident", 14, 2, 12, 1))
sketch3.addConstraint(Sketcher.Constraint("Coincident", 15, 2, 16, 1))
sketch3.addConstraint(Sketcher.Constraint("Coincident", 16, 2, 17, 1))
sketch3.addConstraint(Sketcher.Constraint("Coincident", 17, 2, 15, 1))
sketch3.addConstraint(Sketcher.Constraint("Coincident", 18, 2, 19, 1))
sketch3.addConstraint(Sketcher.Constraint("Coincident", 19, 2, 20, 1))
sketch3.addConstraint(Sketcher.Constraint("Coincident", 20, 2, 18, 1))
sketch3.addConstraint(Sketcher.Constraint("Coincident", 21, 2, 22, 1))
sketch3.addConstraint(Sketcher.Constraint("Coincident", 22, 2, 23, 1))
sketch3.addConstraint(Sketcher.Constraint("Coincident", 23, 2, 21, 1))
sketch3.addConstraint(Sketcher.Constraint("Vertical", 1))
sketch3.addConstraint(Sketcher.Constraint("Horizontal", 2))
sketch3.addConstraint(Sketcher.Constraint("Horizontal", 3))
sketch3.addConstraint(Sketcher.Constraint("Vertical", 5))
sketch3.addConstraint(Sketcher.Constraint("Vertical", 7))
sketch3.addConstraint(Sketcher.Constraint("Horizontal", 8))
sketch3.addConstraint(Sketcher.Constraint("Horizontal", 9))
sketch3.addConstraint(Sketcher.Constraint("Vertical", 11))
sketch3.addConstraint(Sketcher.Constraint("Vertical", 13))
sketch3.addConstraint(Sketcher.Constraint("Horizontal", 14))
sketch3.addConstraint(Sketcher.Constraint("Horizontal", 15))
sketch3.addConstraint(Sketcher.Constraint("Vertical", 17))
sketch3.addConstraint(Sketcher.Constraint("Vertical", 18))
sketch3.addConstraint(Sketcher.Constraint("Horizontal", 19))
sketch3.addConstraint(Sketcher.Constraint("Horizontal", 21))
sketch3.addConstraint(Sketcher.Constraint("Vertical", 23))
sketch3.addConstraint(Sketcher.Constraint("Parallel", 0, 4))
sketch3.addConstraint(Sketcher.Constraint("Parallel", 4, 6))
sketch3.addConstraint(Sketcher.Constraint("Parallel", 6, 10))
sketch3.addConstraint(Sketcher.Constraint("Parallel", 10, 12))
sketch3.addConstraint(Sketcher.Constraint("Parallel", 12, 16))
sketch3.addConstraint(Sketcher.Constraint("Parallel", 16, 20))
sketch3.addConstraint(Sketcher.Constraint("Parallel", 20, 22))
sketch3.addConstraint(Sketcher.Constraint("Horizontal", 0, 2, 3, 2))
sketch3.addConstraint(Sketcher.Constraint("Horizontal", 2, 2, 4, 2))
sketch3.addConstraint(Sketcher.Constraint("Horizontal", 5, 2, 6, 2))
sketch3.addConstraint(Sketcher.Constraint("Horizontal", 4, 2, 7, 2))
sketch3.addConstraint(Sketcher.Constraint("Horizontal", 6, 2, 9, 2))
sketch3.addConstraint(Sketcher.Constraint("Horizontal", 8, 2, 10, 2))
sketch3.addConstraint(Sketcher.Constraint("Horizontal", 11, 2, 12, 2))
sketch3.addConstraint(Sketcher.Constraint("Horizontal", 10, 2, 13, 2))
sketch3.addConstraint(Sketcher.Constraint("Horizontal", 12, 2, 15, 2))
sketch3.addConstraint(Sketcher.Constraint("Horizontal", 14, 2, 16, 2))
sketch3.addConstraint(Sketcher.Constraint("Horizontal", 16, 2, 18, 2))
sketch3.addConstraint(Sketcher.Constraint("Horizontal", 17, 2, 20, 2))
sketch3.addConstraint(Sketcher.Constraint("Horizontal", 20, 2, 21, 2))
sketch3.addConstraint(Sketcher.Constraint("Horizontal", 19, 2, 22, 2))
sketch3.addConstraint(Sketcher.Constraint("Equal", 21, 1))
sketch3.addConstraint(Sketcher.Constraint("DistanceX", 2, 1, 2, 2, Q("2 in")))
sketch3.addConstraint(Sketcher.Constraint("DistanceX", 8, 2, 12, 2, Q("2 in")))
sketch3.addConstraint(Sketcher.Constraint("DistanceX", 11, 2, 15, 2, Q("2 in")))
sketch3.addConstraint(Sketcher.Constraint("DistanceY", 0, 2, -1, 1, Q("0.75 in")))
sketch3.addConstraint(Sketcher.Constraint("DistanceX", 0, 2, 3, 2, Q("1.25 in")))
sketch3.addConstraint(Sketcher.Constraint("DistanceX", 5, 2, 6, 2, Q("1.25 in")))
sketch3.addConstraint(Sketcher.Constraint("DistanceX", 6, 2, 9, 2, Q("1.25 in")))
sketch3.addConstraint(Sketcher.Constraint("DistanceX", 16, 2, 18, 2, Q("1.25 in")))
sketch3.addConstraint(Sketcher.Constraint("DistanceX", 20, 2, 21, 2, Q("1.25 in")))
sketch3.addConstraint(Sketcher.Constraint("DistanceX", -1, 1, 0, 2, Q("5 in")))
pocket2 = body.newObject("PartDesign::Pocket", "Pocket001")
pocket2.Profile = sketch3
pocket2.Length = Q("1 in")

# Sketch on XY plane
sketch4 = body.newObject("Sketcher::SketchObject", "Sketch003")
sketch4.AttachmentSupport = (doc.getObject("XY_Plane"), [""])
sketch4.MapMode = "FlatFace"
sketch4.AttachmentOffset = App.Placement(V(0, 0, 0.125 * 25.4), App.Rotation())
sketch4.addGeometry(Part.LineSegment(V(137, 57, 0), V(156, 38, 0)), False)
sketch4.addGeometry(Part.LineSegment(V(156, 38, 0), V(175, 57, 0)), False)
sketch4.addGeometry(Part.LineSegment(V(175, 57, 0), V(160, 57, 0)), False)
sketch4.addGeometry(Part.LineSegment(V(160, 57, 0), V(160, 69, 0)), False)
sketch4.addGeometry(Part.LineSegment(V(160, 69, 0), V(152, 69, 0)), False)
sketch4.addGeometry(Part.LineSegment(V(152, 69, 0), V(152, 57, 0)), False)
sketch4.addGeometry(Part.LineSegment(V(152, 57, 0), V(137, 57, 0)), False)
sketch4.addGeometry(Part.LineSegment(V(152, 99, 0), V(152, 89, 0)), False)
sketch4.addGeometry(Part.LineSegment(V(152, 89, 0), V(160, 89, 0)), False)
sketch4.addGeometry(Part.LineSegment(V(160, 89, 0), V(160, 99, 0)), False)
sketch4.addGeometry(Part.LineSegment(V(160, 99, 0), V(152, 99, 0)), False)
sketch4.addGeometry(Part.LineSegment(V(152, 84, 0), V(152, 74, 0)), False)
sketch4.addGeometry(Part.LineSegment(V(152, 74, 0), V(160, 74, 0)), False)
sketch4.addGeometry(Part.LineSegment(V(160, 74, 0), V(160, 84, 0)), False)
sketch4.addGeometry(Part.LineSegment(V(160, 84, 0), V(152, 84, 0)), False)
sketch4.addGeometry(Part.LineSegment(V(152, 114, 0), V(152, 104, 0)), False)
sketch4.addGeometry(Part.LineSegment(V(152, 104, 0), V(160, 104, 0)), False)
sketch4.addGeometry(Part.LineSegment(V(160, 104, 0), V(160, 114, 0)), False)
sketch4.addGeometry(Part.LineSegment(V(160, 114, 0), V(152, 114, 0)), False)
sketch4.addGeometry(Part.LineSegment(V(499, 57, 0), V(518, 38, 0)), False)
sketch4.addGeometry(Part.LineSegment(V(518, 38, 0), V(537, 57, 0)), False)
sketch4.addGeometry(Part.LineSegment(V(537, 57, 0), V(522, 57, 0)), False)
sketch4.addGeometry(Part.LineSegment(V(522, 57, 0), V(522, 69, 0)), False)
sketch4.addGeometry(Part.LineSegment(V(522, 69, 0), V(514, 69, 0)), False)
sketch4.addGeometry(Part.LineSegment(V(514, 69, 0), V(514, 57, 0)), False)
sketch4.addGeometry(Part.LineSegment(V(514, 57, 0), V(499, 57, 0)), False)
sketch4.addGeometry(Part.LineSegment(V(514, 114, 0), V(514, 104, 0)), False)
sketch4.addGeometry(Part.LineSegment(V(514, 104, 0), V(522, 104, 0)), False)
sketch4.addGeometry(Part.LineSegment(V(522, 104, 0), V(522, 114, 0)), False)
sketch4.addGeometry(Part.LineSegment(V(522, 114, 0), V(514, 114, 0)), False)
sketch4.addGeometry(Part.LineSegment(V(514, 84, 0), V(514, 74, 0)), False)
sketch4.addGeometry(Part.LineSegment(V(514, 74, 0), V(522, 74, 0)), False)
sketch4.addGeometry(Part.LineSegment(V(522, 74, 0), V(522, 84, 0)), False)
sketch4.addGeometry(Part.LineSegment(V(522, 84, 0), V(514, 84, 0)), False)
sketch4.addGeometry(Part.LineSegment(V(514, 99, 0), V(514, 89, 0)), False)
sketch4.addGeometry(Part.LineSegment(V(514, 89, 0), V(522, 89, 0)), False)
sketch4.addGeometry(Part.LineSegment(V(522, 89, 0), V(522, 99, 0)), False)
sketch4.addGeometry(Part.LineSegment(V(522, 99, 0), V(514, 99, 0)), False)
sketch4.addConstraint(Sketcher.Constraint("Coincident", 0, 2, 1, 1))
sketch4.addConstraint(Sketcher.Constraint("Coincident", 1, 2, 2, 1))
sketch4.addConstraint(Sketcher.Constraint("Coincident", 2, 2, 3, 1))
sketch4.addConstraint(Sketcher.Constraint("Coincident", 3, 2, 4, 1))
sketch4.addConstraint(Sketcher.Constraint("Coincident", 4, 2, 5, 1))
sketch4.addConstraint(Sketcher.Constraint("Coincident", 5, 2, 6, 1))
sketch4.addConstraint(Sketcher.Constraint("Coincident", 6, 2, 0, 1))
sketch4.addConstraint(Sketcher.Constraint("Coincident", 7, 2, 8, 1))
sketch4.addConstraint(Sketcher.Constraint("Coincident", 8, 2, 9, 1))
sketch4.addConstraint(Sketcher.Constraint("Coincident", 9, 2, 10, 1))
sketch4.addConstraint(Sketcher.Constraint("Coincident", 10, 2, 7, 1))
sketch4.addConstraint(Sketcher.Constraint("Coincident", 11, 2, 12, 1))
sketch4.addConstraint(Sketcher.Constraint("Coincident", 12, 2, 13, 1))
sketch4.addConstraint(Sketcher.Constraint("Coincident", 13, 2, 14, 1))
sketch4.addConstraint(Sketcher.Constraint("Coincident", 14, 2, 11, 1))
sketch4.addConstraint(Sketcher.Constraint("Coincident", 15, 2, 16, 1))
sketch4.addConstraint(Sketcher.Constraint("Coincident", 16, 2, 17, 1))
sketch4.addConstraint(Sketcher.Constraint("Coincident", 17, 2, 18, 1))
sketch4.addConstraint(Sketcher.Constraint("Coincident", 18, 2, 15, 1))
sketch4.addConstraint(Sketcher.Constraint("Coincident", 19, 2, 20, 1))
sketch4.addConstraint(Sketcher.Constraint("Coincident", 20, 2, 21, 1))
sketch4.addConstraint(Sketcher.Constraint("Coincident", 21, 2, 22, 1))
sketch4.addConstraint(Sketcher.Constraint("Coincident", 22, 2, 23, 1))
sketch4.addConstraint(Sketcher.Constraint("Coincident", 23, 2, 24, 1))
sketch4.addConstraint(Sketcher.Constraint("Coincident", 24, 2, 25, 1))
sketch4.addConstraint(Sketcher.Constraint("Coincident", 25, 2, 19, 1))
sketch4.addConstraint(Sketcher.Constraint("Coincident", 26, 2, 27, 1))
sketch4.addConstraint(Sketcher.Constraint("Coincident", 27, 2, 28, 1))
sketch4.addConstraint(Sketcher.Constraint("Coincident", 28, 2, 29, 1))
sketch4.addConstraint(Sketcher.Constraint("Coincident", 29, 2, 26, 1))
sketch4.addConstraint(Sketcher.Constraint("Coincident", 30, 2, 31, 1))
sketch4.addConstraint(Sketcher.Constraint("Coincident", 31, 2, 32, 1))
sketch4.addConstraint(Sketcher.Constraint("Coincident", 32, 2, 33, 1))
sketch4.addConstraint(Sketcher.Constraint("Coincident", 33, 2, 30, 1))
sketch4.addConstraint(Sketcher.Constraint("Coincident", 34, 2, 35, 1))
sketch4.addConstraint(Sketcher.Constraint("Coincident", 35, 2, 36, 1))
sketch4.addConstraint(Sketcher.Constraint("Coincident", 36, 2, 37, 1))
sketch4.addConstraint(Sketcher.Constraint("Coincident", 37, 2, 34, 1))
sketch4.addConstraint(Sketcher.Constraint("Horizontal", 2))
sketch4.addConstraint(Sketcher.Constraint("Vertical", 3))
sketch4.addConstraint(Sketcher.Constraint("Horizontal", 4))
sketch4.addConstraint(Sketcher.Constraint("Vertical", 5))
sketch4.addConstraint(Sketcher.Constraint("Horizontal", 6))
sketch4.addConstraint(Sketcher.Constraint("Vertical", 7))
sketch4.addConstraint(Sketcher.Constraint("Horizontal", 8))
sketch4.addConstraint(Sketcher.Constraint("Vertical", 9))
sketch4.addConstraint(Sketcher.Constraint("Horizontal", 10))
sketch4.addConstraint(Sketcher.Constraint("Vertical", 11))
sketch4.addConstraint(Sketcher.Constraint("Horizontal", 12))
sketch4.addConstraint(Sketcher.Constraint("Vertical", 13))
sketch4.addConstraint(Sketcher.Constraint("Horizontal", 14))
sketch4.addConstraint(Sketcher.Constraint("Vertical", 15))
sketch4.addConstraint(Sketcher.Constraint("Horizontal", 16))
sketch4.addConstraint(Sketcher.Constraint("Vertical", 17))
sketch4.addConstraint(Sketcher.Constraint("Horizontal", 18))
sketch4.addConstraint(Sketcher.Constraint("Horizontal", 21))
sketch4.addConstraint(Sketcher.Constraint("Vertical", 22))
sketch4.addConstraint(Sketcher.Constraint("Horizontal", 23))
sketch4.addConstraint(Sketcher.Constraint("Vertical", 24))
sketch4.addConstraint(Sketcher.Constraint("Horizontal", 25))
sketch4.addConstraint(Sketcher.Constraint("Vertical", 26))
sketch4.addConstraint(Sketcher.Constraint("Horizontal", 27))
sketch4.addConstraint(Sketcher.Constraint("Vertical", 28))
sketch4.addConstraint(Sketcher.Constraint("Horizontal", 29))
sketch4.addConstraint(Sketcher.Constraint("Vertical", 30))
sketch4.addConstraint(Sketcher.Constraint("Horizontal", 31))
sketch4.addConstraint(Sketcher.Constraint("Vertical", 32))
sketch4.addConstraint(Sketcher.Constraint("Horizontal", 33))
sketch4.addConstraint(Sketcher.Constraint("Vertical", 34))
sketch4.addConstraint(Sketcher.Constraint("Horizontal", 35))
sketch4.addConstraint(Sketcher.Constraint("Vertical", 36))
sketch4.addConstraint(Sketcher.Constraint("Horizontal", 37))
sketch4.addConstraint(Sketcher.Constraint("Perpendicular", 0, 1))
sketch4.addConstraint(Sketcher.Constraint("Perpendicular", 1, 19))
sketch4.addConstraint(Sketcher.Constraint("Perpendicular", 19, 20))
sketch4.addConstraint(Sketcher.Constraint("Horizontal", 2, 2, 5, 2))
sketch4.addConstraint(Sketcher.Constraint("Horizontal", 0, 2, 19, 2))
sketch4.addConstraint(Sketcher.Constraint("Horizontal", 6, 2, 20, 2))
sketch4.addConstraint(Sketcher.Constraint("Horizontal", 4, 2, 22, 2))
sketch4.addConstraint(Sketcher.Constraint("Horizontal", 21, 2, 24, 2))
sketch4.addConstraint(Sketcher.Constraint("Horizontal", 16, 2, 26, 2))
sketch4.addConstraint(Sketcher.Constraint("Horizontal", 18, 2, 28, 2))
sketch4.addConstraint(Sketcher.Constraint("Horizontal", 12, 2, 30, 2))
sketch4.addConstraint(Sketcher.Constraint("Horizontal", 14, 2, 32, 2))
sketch4.addConstraint(Sketcher.Constraint("Horizontal", 8, 2, 34, 2))
sketch4.addConstraint(Sketcher.Constraint("Horizontal", 10, 2, 36, 2))
sketch4.addConstraint(Sketcher.Constraint("Vertical", 5, 2, 7, 2))
sketch4.addConstraint(Sketcher.Constraint("Vertical", 3, 2, 8, 2))
sketch4.addConstraint(Sketcher.Constraint("Vertical", 10, 2, 11, 2))
sketch4.addConstraint(Sketcher.Constraint("Vertical", 9, 2, 12, 2))
sketch4.addConstraint(Sketcher.Constraint("Vertical", 14, 2, 15, 2))
sketch4.addConstraint(Sketcher.Constraint("Vertical", 13, 2, 16, 2))
sketch4.addConstraint(Sketcher.Constraint("Vertical", 24, 2, 26, 2))
sketch4.addConstraint(Sketcher.Constraint("Vertical", 22, 2, 27, 2))
sketch4.addConstraint(Sketcher.Constraint("Vertical", 29, 2, 30, 2))
sketch4.addConstraint(Sketcher.Constraint("Vertical", 28, 2, 31, 2))
sketch4.addConstraint(Sketcher.Constraint("Vertical", 33, 2, 34, 2))
sketch4.addConstraint(Sketcher.Constraint("Vertical", 32, 2, 35, 2))
sketch4.addConstraint(Sketcher.Constraint("Equal", 2, 6))
sketch4.addConstraint(Sketcher.Constraint("Equal", 6, 21))
sketch4.addConstraint(Sketcher.Constraint("Equal", 18, 23))
sketch4.addConstraint(Sketcher.Constraint("Equal", 9, 11))
sketch4.addConstraint(Sketcher.Constraint("Equal", 13, 15))
sketch4.addConstraint(Sketcher.Constraint("Equal", 0, 1))
sketch4.addConstraint(Sketcher.Constraint("DistanceX", 2, 2, 2, 1, Q("0.6 in")))
sketch4.addConstraint(Sketcher.Constraint("DistanceX", 4, 2, 4, 1, Q("0.3 in")))
sketch4.addConstraint(Sketcher.Constraint("DistanceY", 3, 1, 3, 2, Q("0.45 in")))
sketch4.addConstraint(Sketcher.Constraint("DistanceY", -1, 1, 0, 2, Q("1.5 in")))
sketch4.addConstraint(Sketcher.Constraint("DistanceY", -1, 1, 9, 2, Q("3.9 in")))
sketch4.addConstraint(Sketcher.Constraint("DistanceY", -1, 1, 13, 2, Q("3.3 in")))
sketch4.addConstraint(Sketcher.Constraint("DistanceY", -1, 1, 17, 2, Q("4.5 in")))
sketch4.addConstraint(Sketcher.Constraint("DistanceX", 1, 2, 19, 2, Q("13.5 in")))
sketch4.addConstraint(Sketcher.Constraint("DistanceY", 7, 2, 7, 1, Q("10.1405 mm")))
sketch4.addConstraint(Sketcher.Constraint("DistanceX", -1, 1, 0, 2, Q("156.1905 mm")))
pocket3 = body.newObject("PartDesign::Pocket", "Pocket002")
pocket3.Profile = sketch4
pocket3.Length = Q("1 in")

doc.recompute()
